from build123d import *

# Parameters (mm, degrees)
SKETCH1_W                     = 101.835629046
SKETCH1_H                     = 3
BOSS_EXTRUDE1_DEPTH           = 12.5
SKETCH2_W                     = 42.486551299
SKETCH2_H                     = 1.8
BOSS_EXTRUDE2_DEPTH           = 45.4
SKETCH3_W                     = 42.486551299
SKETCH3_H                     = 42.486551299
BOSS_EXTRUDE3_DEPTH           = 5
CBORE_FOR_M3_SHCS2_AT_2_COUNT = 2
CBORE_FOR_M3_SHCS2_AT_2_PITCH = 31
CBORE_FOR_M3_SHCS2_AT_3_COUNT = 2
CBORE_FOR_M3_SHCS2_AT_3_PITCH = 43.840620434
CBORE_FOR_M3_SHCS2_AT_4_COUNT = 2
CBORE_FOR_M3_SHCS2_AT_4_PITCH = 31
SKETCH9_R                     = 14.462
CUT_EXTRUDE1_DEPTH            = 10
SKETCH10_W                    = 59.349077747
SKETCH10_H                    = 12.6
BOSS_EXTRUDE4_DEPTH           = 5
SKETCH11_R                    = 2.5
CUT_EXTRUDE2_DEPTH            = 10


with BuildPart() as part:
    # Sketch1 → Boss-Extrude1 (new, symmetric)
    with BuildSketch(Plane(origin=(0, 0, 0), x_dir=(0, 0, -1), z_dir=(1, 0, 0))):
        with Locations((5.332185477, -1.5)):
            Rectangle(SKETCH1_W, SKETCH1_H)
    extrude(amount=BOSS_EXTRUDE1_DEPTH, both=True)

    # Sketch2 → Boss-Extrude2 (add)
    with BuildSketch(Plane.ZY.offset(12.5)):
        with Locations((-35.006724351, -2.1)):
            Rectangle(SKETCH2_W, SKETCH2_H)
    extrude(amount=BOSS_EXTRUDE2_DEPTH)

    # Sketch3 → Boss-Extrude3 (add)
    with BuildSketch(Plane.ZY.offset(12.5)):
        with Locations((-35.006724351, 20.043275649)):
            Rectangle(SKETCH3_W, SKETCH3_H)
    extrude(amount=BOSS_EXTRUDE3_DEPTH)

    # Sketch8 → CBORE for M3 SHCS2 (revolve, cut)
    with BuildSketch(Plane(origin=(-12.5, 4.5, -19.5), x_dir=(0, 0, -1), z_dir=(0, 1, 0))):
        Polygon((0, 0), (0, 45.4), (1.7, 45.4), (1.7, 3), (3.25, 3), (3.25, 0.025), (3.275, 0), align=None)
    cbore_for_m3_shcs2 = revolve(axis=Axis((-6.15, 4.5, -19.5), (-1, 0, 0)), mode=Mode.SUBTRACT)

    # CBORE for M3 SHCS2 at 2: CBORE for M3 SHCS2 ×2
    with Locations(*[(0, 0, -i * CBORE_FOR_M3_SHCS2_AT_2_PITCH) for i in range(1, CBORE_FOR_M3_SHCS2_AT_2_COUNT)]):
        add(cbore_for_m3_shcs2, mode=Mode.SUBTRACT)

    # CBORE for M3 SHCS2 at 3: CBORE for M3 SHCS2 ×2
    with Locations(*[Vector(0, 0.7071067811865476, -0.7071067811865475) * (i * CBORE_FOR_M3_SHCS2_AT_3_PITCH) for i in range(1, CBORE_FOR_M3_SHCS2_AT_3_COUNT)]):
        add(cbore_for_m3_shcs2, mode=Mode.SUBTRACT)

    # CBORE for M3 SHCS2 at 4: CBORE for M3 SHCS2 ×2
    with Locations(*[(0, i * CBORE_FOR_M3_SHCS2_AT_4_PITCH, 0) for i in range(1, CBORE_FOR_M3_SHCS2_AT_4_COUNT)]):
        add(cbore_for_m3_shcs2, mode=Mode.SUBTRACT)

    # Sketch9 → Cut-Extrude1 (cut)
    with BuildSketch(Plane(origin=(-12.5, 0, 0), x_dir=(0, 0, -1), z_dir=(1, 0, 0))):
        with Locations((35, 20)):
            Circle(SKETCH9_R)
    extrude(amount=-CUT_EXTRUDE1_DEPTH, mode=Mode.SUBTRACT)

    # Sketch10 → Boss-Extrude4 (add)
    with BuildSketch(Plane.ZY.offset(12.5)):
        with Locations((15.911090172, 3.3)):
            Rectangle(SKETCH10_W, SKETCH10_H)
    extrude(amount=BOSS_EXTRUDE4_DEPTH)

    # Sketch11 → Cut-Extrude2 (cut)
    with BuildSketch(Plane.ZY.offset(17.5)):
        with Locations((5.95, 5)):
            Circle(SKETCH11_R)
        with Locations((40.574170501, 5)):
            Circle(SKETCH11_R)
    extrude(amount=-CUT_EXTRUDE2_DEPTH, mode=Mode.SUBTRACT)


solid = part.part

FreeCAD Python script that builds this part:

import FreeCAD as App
import Part
import Sketcher
from FreeCAD import Vector
Q = App.Units.Quantity

doc = App.newDocument("Part")
params = doc.addObject("Spreadsheet::Sheet", "Params")
for row, (alias, value) in enumerate([
    ("sketch1_width", "3 mm"),
    ("pad1_length", "25 mm"),
    ("sketch2_width", "1.8 mm"),
    ("pad2_length", "45.4 mm"),
    ("pad3_length", "5 mm"),
    ("sketch4_width", "45.4 mm"),
    ("sketch4_width2", "42.4 mm"),
    ("sketch4_height", "1.7 mm"),
    ("sketch4_height2", "1.55 mm"),
    ("groove_angle", "360 deg"),
    ("linearpattern_pitch", "31 mm"),
    ("linearpattern2_pitch", "43.84062 mm"),
    ("linearpattern3_pitch", "31 mm"),
    ("pocket1_length", "10 mm"),
    ("sketch6_width", "12.6 mm"),
    ("pad4_length", "5 mm"),
    ("sketch7_diameter", "5 mm"),
    ("pocket2_length", "10 mm"),
], start=1):
    params.set(f"A{row}", alias)
    params.set(f"B{row}", "=" + value)
    params.setAlias(f"B{row}", alias)

body = doc.addObject("PartDesign::Body", "Body")

# Sketch on YZ plane
sketch1 = body.newObject("Sketcher::SketchObject", "Sketch")
sketch1.AttachmentSupport = (doc.getObject("YZ_Plane"), [""])
sketch1.MapMode = "FlatFace"
sketch1.addGeometry([
    Part.LineSegment(Vector(0, 45.6, 0), Vector(-3, 45.6, 0)),
    Part.LineSegment(Vector(-3, 45.6, 0), Vector(-3, -56.2, 0)),
    Part.LineSegment(Vector(-3, -56.2, 0), Vector(0, -56.2, 0)),
    Part.LineSegment(Vector(0, -56.2, 0), Vector(0, 45.6, 0)),
], False)
sketch1.addConstraint([
    Sketcher.Constraint("Coincident", 0, 2, 1, 1),
    Sketcher.Constraint("Coincident", 1, 2, 2, 1),
    Sketcher.Constraint("Coincident", 2, 2, 3, 1),
    Sketcher.Constraint("Coincident", 3, 2, 0, 1),
    Sketcher.Constraint("Horizontal", 0),
    Sketcher.Constraint("Vertical", 1),
    Sketcher.Constraint("Horizontal", 2),
    Sketcher.Constraint("Vertical", 3),
    Sketcher.Constraint("PointOnObject", 2, 2, -2),
    Sketcher.Constraint("DistanceX", 0, 2, 0, 1, Q("3 mm")),
    Sketcher.Constraint("DistanceY", 1, 2, -1, 1, Q("56.25 mm")),
    Sketcher.Constraint("DistanceY", 1, 2, 1, 1, Q("101.835629 mm")),
])
sketch1.setExpression("Constraints[9]", "Params.sketch1_width")
pad1 = body.newObject("PartDesign::Pad", "Pad")
pad1.Profile = sketch1
pad1.setExpression("Length", "Params.pad1_length")
pad1.Midplane = True

# Sketch on YZ plane
sketch2 = body.newObject("Sketcher::SketchObject", "Sketch001")
sketch2.AttachmentSupport = (doc.getObject("YZ_Plane"), [""])
sketch2.MapMode = "FlatFace"
sketch2.AttachmentOffset = App.Placement(Vector(0, 0, -12.5), App.Rotation())
sketch2.addGeometry([
    Part.LineSegment(Vector(-1.2, -56.3, 0), Vector(-3, -56.3, 0)),
    Part.LineSegment(Vector(-3, -56.3, 0), Vector(-3, -13.8, 0)),
    Part.LineSegment(Vector(-3, -13.8, 0), Vector(-1.2, -13.8, 0)),
    Part.LineSegment(Vector(-1.2, -13.8, 0), Vector(-1.2, -56.3, 0)),
], False)
sketch2.addConstraint([
    Sketcher.Constraint("Coincident", 0, 2, 1, 1),
    Sketcher.Constraint("Coincident", 1, 2, 2, 1),
    Sketcher.Constraint("Coincident", 2, 2, 3, 1),
    Sketcher.Constraint("Coincident", 3, 2, 0, 1),
    Sketcher.Constraint("Horizontal", 0),
    Sketcher.Constraint("Vertical", 1),
    Sketcher.Constraint("Horizontal", 2),
    Sketcher.Constraint("Vertical", 3),
    Sketcher.Constraint("DistanceX", 0, 2, 0, 1, Q("1.8 mm")),
    Sketcher.Constraint("DistanceX", 0, 2, -1, 1, Q("3 mm")),
    Sketcher.Constraint("DistanceY", 0, 2, -1, 1, Q("56.25 mm")),
    Sketcher.Constraint("DistanceY", 1, 1, 1, 2, Q("42.486551 mm")),
])
sketch2.setExpression("Constraints[8]", "Params.sketch2_width")
pad2 = body.newObject("PartDesign::Pad", "Pad001")
pad2.Profile = sketch2
pad2.setExpression("Length", "Params.pad2_length")
pad2.Reversed = True

# Sketch on YZ plane
sketch3 = body.newObject("Sketcher::SketchObject", "Sketch002")
sketch3.AttachmentSupport = (doc.getObject("YZ_Plane"), [""])
sketch3.MapMode = "FlatFace"
sketch3.AttachmentOffset = App.Placement(Vector(0, 0, -12.5), App.Rotation())
sketch3.addGeometry([
    Part.LineSegment(Vector(41, -56, 0), Vector(-1, -56, 0)),
    Part.LineSegment(Vector(-1, -56, 0), Vector(-1, -14, 0)),
    Part.LineSegment(Vector(-1, -14, 0), Vector(41, -14, 0)),
    Part.LineSegment(Vector(41, -14, 0), Vector(41, -56, 0)),
], False)
sketch3.addConstraint([
    Sketcher.Constraint("Coincident", 0, 2, 1, 1),
    Sketcher.Constraint("Coincident", 1, 2, 2, 1),
    Sketcher.Constraint("Coincident", 2, 2, 3, 1),
    Sketcher.Constraint("Coincident", 3, 2, 0, 1),
    Sketcher.Constraint("Horizontal", 0),
    Sketcher.Constraint("Vertical", 1),
    Sketcher.Constraint("Horizontal", 2),
    Sketcher.Constraint("Vertical", 3),
    Sketcher.Constraint("Equal", 2, 1),
    Sketcher.Constraint("DistanceX", 0, 2, -1, 1, Q("1.2 mm")),
    Sketcher.Constraint("DistanceY", 0, 2, -1, 1, Q("56.25 mm")),
    Sketcher.Constraint("DistanceX", 0, 2, 0, 1, Q("42.486551 mm")),
])
pad3 = body.newObject("PartDesign::Pad", "Pad002")
pad3.Profile = sketch3
pad3.setExpression("Length", "Params.pad3_length")
pad3.Reversed = True

# Sketch on XZ plane
sketch4 = body.newObject("Sketcher::SketchObject", "Sketch003")
sketch4.AttachmentSupport = (doc.getObject("XZ_Plane"), [""])
sketch4.MapMode = "FlatFace"
sketch4.AttachmentOffset = App.Placement(Vector(0, 0, -4.5), App.Rotation())
sketch4.addGeometry([
    Part.LineSegment(Vector(-57.9, -19.5, 0), Vector(-12.5, -19.5, 0)),  # 0
    Part.LineSegment(Vector(-12.5, -19.5, 0), Vector(-12.5, -22.775, 0)),  # 1
    Part.LineSegment(Vector(-12.5, -22.775, 0), Vector(-12.525, -22.75, 0)),  # 2
    Part.LineSegment(Vector(-12.525, -22.75, 0), Vector(-15.5, -22.75, 0)),  # 3
    Part.LineSegment(Vector(-15.5, -22.75, 0), Vector(-15.5, -21.2, 0)),  # 4
    Part.LineSegment(Vector(-15.5, -21.2, 0), Vector(-57.9, -21.2, 0)),  # 5
    Part.LineSegment(Vector(-57.9, -21.2, 0), Vector(-57.9, -19.5, 0)),  # 6
], False)
sketch4.addGeometry(Part.LineSegment(Vector(-12.5, -19.5, 0), Vector(-57.9, -19.5, 0)), True)  # axis
sketch4.addConstraint([
    Sketcher.Constraint("Coincident", 0, 2, 1, 1),
    Sketcher.Constraint("Coincident", 1, 2, 2, 1),
    Sketcher.Constraint("Coincident", 2, 2, 3, 1),
    Sketcher.Constraint("Coincident", 3, 2, 4, 1),
    Sketcher.Constraint("Coincident", 4, 2, 5, 1),
    Sketcher.Constraint("Coincident", 5, 2, 6, 1),
    Sketcher.Constraint("Coincident", 6, 2, 0, 1),
    Sketcher.Constraint("Horizontal", 0),
    Sketcher.Constraint("Vertical", 1),
    Sketcher.Constraint("Horizontal", 3),
    Sketcher.Constraint("Vertical", 4),
    Sketcher.Constraint("Horizontal", 5),
    Sketcher.Constraint("Vertical", 6),
    Sketcher.Constraint("Horizontal", 7),
    Sketcher.Constraint("Coincident", 7, 1, 0, 2),
    Sketcher.Constraint("Vertical", 5, 2, 7, 2),
    Sketcher.Constraint("Angle", 2, Q("135 deg")),
    Sketcher.Constraint("DistanceX", 0, 1, 0, 2, Q("45.4 mm")),
    Sketcher.Constraint("DistanceX", 5, 2, 5, 1, Q("42.4 mm")),
    Sketcher.Constraint("DistanceY", 6, 1, 6, 2, Q("1.7 mm")),
    Sketcher.Constraint("DistanceY", 4, 1, 4, 2, Q("1.55 mm")),
    Sketcher.Constraint("DistanceX", 0, 2, -1, 1, Q("12.5 mm")),
    Sketcher.Constraint("DistanceY", 0, 2, -1, 1, Q("19.5 mm")),
    Sketcher.Constraint("DistanceX", 3, 2, 3, 1, Q("2.975 mm")),
])
sketch4.setExpression("Constraints[17]", "Params.sketch4_width")
sketch4.setExpression("Constraints[18]", "Params.sketch4_width2")
sketch4.setExpression("Constraints[19]", "Params.sketch4_height")
sketch4.setExpression("Constraints[20]", "Params.sketch4_height2")
groove = body.newObject("PartDesign::Groove", "Groove")
groove.Profile = sketch4
groove.ReferenceAxis = (sketch4, ["Axis0"])
groove.setExpression("Angle", "Params.groove_angle")
doc.recompute()

linearpattern = body.newObject("PartDesign::LinearPattern", "LinearPattern")
linearpattern.Originals = [groove]
linearpattern.Direction = (doc.getObject("Z_Axis"), [""])
linearpattern.Mode = "offset"
linearpattern.setExpression("Offset", "Params.linearpattern_pitch")
linearpattern.Occurrences = 2
linearpattern.Reversed = True
body.Tip = linearpattern
doc.recompute()

datumline = body.newObject("PartDesign::Line", "DatumLine")
datumline.Placement = App.Placement(Vector(0, 0, 0), App.Rotation(Vector(0, 0, 1), Vector(0, 0.707106781, -0.707106781)))
linearpattern2 = body.newObject("PartDesign::LinearPattern", "LinearPattern001")
linearpattern2.Originals = [groove]
linearpattern2.Direction = (datumline, [""])
linearpattern2.Mode = "offset"
linearpattern2.setExpression("Offset", "Params.linearpattern2_pitch")
linearpattern2.Occurrences = 2
body.Tip = linearpattern2
doc.recompute()

linearpattern3 = body.newObject("PartDesign::LinearPattern", "LinearPattern002")
linearpattern3.Originals = [groove]
linearpattern3.Direction = (doc.getObject("Y_Axis"), [""])
linearpattern3.Mode = "offset"
linearpattern3.setExpression("Offset", "Params.linearpattern3_pitch")
linearpattern3.Occurrences = 2
body.Tip = linearpattern3

# Sketch on YZ plane
sketch5 = body.newObject("Sketcher::SketchObject", "Sketch004")
sketch5.AttachmentSupport = (doc.getObject("YZ_Plane"), [""])
sketch5.MapMode = "FlatFace"
sketch5.AttachmentOffset = App.Placement(Vector(0, 0, -12.5), App.Rotation())
sketch5.addGeometry(Part.Circle(Vector(20, -35, 0), Vector(0, 0, 1), 14), False)
sketch5.addConstraint([
    Sketcher.Constraint("Diameter", 0, Q("28.924 mm")),
    Sketcher.Constraint("DistanceX", -1, 1, 0, 3, Q("20 mm")),
    Sketcher.Constraint("DistanceY", 0, 3, -1, 1, Q("35 mm")),
])
pocket1 = body.newObject("PartDesign::Pocket", "Pocket")
pocket1.Profile = sketch5
pocket1.setExpression("Length", "Params.pocket1_length")

# Sketch on YZ plane
sketch6 = body.newObject("Sketcher::SketchObject", "Sketch005")
sketch6.AttachmentSupport = (doc.getObject("YZ_Plane"), [""])
sketch6.MapMode = "FlatFace"
sketch6.AttachmentOffset = App.Placement(Vector(0, 0, -12.5), App.Rotation())
sketch6.addGeometry([
    Part.LineSegment(Vector(10, -14, 0), Vector(-3, -14, 0)),
    Part.LineSegment(Vector(-3, -14, 0), Vector(-3, 46, 0)),
    Part.LineSegment(Vector(-3, 46, 0), Vector(10, 46, 0)),
    Part.LineSegment(Vector(10, 46, 0), Vector(10, -14, 0)),
], False)
sketch6.addConstraint([
    Sketcher.Constraint("Coincident", 0, 2, 1, 1),
    Sketcher.Constraint("Coincident", 1, 2, 2, 1),
    Sketcher.Constraint("Coincident", 2, 2, 3, 1),
    Sketcher.Constraint("Coincident", 3, 2, 0, 1),
    Sketcher.Constraint("Horizontal", 0),
    Sketcher.Constraint("Vertical", 1),
    Sketcher.Constraint("Horizontal", 2),
    Sketcher.Constraint("Vertical", 3),
    Sketcher.Constraint("DistanceX", 0, 2, 0, 1, Q("12.6 mm")),
    Sketcher.Constraint("DistanceX", 0, 2, -1, 1, Q("3 mm")),
    Sketcher.Constraint("DistanceY", 1, 1, 1, 2, Q("59.349078 mm")),
    Sketcher.Constraint("DistanceY", 0, 2, -1, 1, Q("13.763449 mm")),
])
sketch6.setExpression("Constraints[8]", "Params.sketch6_width")
pad4 = body.newObject("PartDesign::Pad", "Pad003")
pad4.Profile = sketch6
pad4.setExpression("Length", "Params.pad4_length")
pad4.Reversed = True

# Sketch on YZ plane
sketch7 = body.newObject("Sketcher::SketchObject", "Sketch006")
sketch7.AttachmentSupport = (doc.getObject("YZ_Plane"), [""])
sketch7.MapMode = "FlatFace"
sketch7.AttachmentOffset = App.Placement(Vector(0, 0, -17.5), App.Rotation())
sketch7.addGeometry([
    Part.Circle(Vector(5, 6, 0), Vector(0, 0, 1), 2.5),
    Part.Circle(Vector(5, 40.6, 0), Vector(0, 0, 1), 2.5),
], False)
sketch7.addConstraint([
    Sketcher.Constraint("Equal", 0, 1),
    Sketcher.Constraint("Vertical", 0, 3, 1, 3),
    Sketcher.Constraint("Diameter", 0, Q("5 mm")),
    Sketcher.Constraint("DistanceX", -1, 1, 0, 3, Q("5 mm")),
    Sketcher.Constraint("DistanceY", -1, 1, 0, 3, Q("5.95 mm")),
    Sketcher.Constraint("DistanceY", -1, 1, 1, 3, Q("40.574171 mm")),
])
sketch7.setExpression("Constraints[2]", "Params.sketch7_diameter")
pocket2 = body.newObject("PartDesign::Pocket", "Pocket001")
pocket2.Profile = sketch7
pocket2.setExpression("Length", "Params.pocket2_length")
pocket2.Reversed = True

doc.recompute()
